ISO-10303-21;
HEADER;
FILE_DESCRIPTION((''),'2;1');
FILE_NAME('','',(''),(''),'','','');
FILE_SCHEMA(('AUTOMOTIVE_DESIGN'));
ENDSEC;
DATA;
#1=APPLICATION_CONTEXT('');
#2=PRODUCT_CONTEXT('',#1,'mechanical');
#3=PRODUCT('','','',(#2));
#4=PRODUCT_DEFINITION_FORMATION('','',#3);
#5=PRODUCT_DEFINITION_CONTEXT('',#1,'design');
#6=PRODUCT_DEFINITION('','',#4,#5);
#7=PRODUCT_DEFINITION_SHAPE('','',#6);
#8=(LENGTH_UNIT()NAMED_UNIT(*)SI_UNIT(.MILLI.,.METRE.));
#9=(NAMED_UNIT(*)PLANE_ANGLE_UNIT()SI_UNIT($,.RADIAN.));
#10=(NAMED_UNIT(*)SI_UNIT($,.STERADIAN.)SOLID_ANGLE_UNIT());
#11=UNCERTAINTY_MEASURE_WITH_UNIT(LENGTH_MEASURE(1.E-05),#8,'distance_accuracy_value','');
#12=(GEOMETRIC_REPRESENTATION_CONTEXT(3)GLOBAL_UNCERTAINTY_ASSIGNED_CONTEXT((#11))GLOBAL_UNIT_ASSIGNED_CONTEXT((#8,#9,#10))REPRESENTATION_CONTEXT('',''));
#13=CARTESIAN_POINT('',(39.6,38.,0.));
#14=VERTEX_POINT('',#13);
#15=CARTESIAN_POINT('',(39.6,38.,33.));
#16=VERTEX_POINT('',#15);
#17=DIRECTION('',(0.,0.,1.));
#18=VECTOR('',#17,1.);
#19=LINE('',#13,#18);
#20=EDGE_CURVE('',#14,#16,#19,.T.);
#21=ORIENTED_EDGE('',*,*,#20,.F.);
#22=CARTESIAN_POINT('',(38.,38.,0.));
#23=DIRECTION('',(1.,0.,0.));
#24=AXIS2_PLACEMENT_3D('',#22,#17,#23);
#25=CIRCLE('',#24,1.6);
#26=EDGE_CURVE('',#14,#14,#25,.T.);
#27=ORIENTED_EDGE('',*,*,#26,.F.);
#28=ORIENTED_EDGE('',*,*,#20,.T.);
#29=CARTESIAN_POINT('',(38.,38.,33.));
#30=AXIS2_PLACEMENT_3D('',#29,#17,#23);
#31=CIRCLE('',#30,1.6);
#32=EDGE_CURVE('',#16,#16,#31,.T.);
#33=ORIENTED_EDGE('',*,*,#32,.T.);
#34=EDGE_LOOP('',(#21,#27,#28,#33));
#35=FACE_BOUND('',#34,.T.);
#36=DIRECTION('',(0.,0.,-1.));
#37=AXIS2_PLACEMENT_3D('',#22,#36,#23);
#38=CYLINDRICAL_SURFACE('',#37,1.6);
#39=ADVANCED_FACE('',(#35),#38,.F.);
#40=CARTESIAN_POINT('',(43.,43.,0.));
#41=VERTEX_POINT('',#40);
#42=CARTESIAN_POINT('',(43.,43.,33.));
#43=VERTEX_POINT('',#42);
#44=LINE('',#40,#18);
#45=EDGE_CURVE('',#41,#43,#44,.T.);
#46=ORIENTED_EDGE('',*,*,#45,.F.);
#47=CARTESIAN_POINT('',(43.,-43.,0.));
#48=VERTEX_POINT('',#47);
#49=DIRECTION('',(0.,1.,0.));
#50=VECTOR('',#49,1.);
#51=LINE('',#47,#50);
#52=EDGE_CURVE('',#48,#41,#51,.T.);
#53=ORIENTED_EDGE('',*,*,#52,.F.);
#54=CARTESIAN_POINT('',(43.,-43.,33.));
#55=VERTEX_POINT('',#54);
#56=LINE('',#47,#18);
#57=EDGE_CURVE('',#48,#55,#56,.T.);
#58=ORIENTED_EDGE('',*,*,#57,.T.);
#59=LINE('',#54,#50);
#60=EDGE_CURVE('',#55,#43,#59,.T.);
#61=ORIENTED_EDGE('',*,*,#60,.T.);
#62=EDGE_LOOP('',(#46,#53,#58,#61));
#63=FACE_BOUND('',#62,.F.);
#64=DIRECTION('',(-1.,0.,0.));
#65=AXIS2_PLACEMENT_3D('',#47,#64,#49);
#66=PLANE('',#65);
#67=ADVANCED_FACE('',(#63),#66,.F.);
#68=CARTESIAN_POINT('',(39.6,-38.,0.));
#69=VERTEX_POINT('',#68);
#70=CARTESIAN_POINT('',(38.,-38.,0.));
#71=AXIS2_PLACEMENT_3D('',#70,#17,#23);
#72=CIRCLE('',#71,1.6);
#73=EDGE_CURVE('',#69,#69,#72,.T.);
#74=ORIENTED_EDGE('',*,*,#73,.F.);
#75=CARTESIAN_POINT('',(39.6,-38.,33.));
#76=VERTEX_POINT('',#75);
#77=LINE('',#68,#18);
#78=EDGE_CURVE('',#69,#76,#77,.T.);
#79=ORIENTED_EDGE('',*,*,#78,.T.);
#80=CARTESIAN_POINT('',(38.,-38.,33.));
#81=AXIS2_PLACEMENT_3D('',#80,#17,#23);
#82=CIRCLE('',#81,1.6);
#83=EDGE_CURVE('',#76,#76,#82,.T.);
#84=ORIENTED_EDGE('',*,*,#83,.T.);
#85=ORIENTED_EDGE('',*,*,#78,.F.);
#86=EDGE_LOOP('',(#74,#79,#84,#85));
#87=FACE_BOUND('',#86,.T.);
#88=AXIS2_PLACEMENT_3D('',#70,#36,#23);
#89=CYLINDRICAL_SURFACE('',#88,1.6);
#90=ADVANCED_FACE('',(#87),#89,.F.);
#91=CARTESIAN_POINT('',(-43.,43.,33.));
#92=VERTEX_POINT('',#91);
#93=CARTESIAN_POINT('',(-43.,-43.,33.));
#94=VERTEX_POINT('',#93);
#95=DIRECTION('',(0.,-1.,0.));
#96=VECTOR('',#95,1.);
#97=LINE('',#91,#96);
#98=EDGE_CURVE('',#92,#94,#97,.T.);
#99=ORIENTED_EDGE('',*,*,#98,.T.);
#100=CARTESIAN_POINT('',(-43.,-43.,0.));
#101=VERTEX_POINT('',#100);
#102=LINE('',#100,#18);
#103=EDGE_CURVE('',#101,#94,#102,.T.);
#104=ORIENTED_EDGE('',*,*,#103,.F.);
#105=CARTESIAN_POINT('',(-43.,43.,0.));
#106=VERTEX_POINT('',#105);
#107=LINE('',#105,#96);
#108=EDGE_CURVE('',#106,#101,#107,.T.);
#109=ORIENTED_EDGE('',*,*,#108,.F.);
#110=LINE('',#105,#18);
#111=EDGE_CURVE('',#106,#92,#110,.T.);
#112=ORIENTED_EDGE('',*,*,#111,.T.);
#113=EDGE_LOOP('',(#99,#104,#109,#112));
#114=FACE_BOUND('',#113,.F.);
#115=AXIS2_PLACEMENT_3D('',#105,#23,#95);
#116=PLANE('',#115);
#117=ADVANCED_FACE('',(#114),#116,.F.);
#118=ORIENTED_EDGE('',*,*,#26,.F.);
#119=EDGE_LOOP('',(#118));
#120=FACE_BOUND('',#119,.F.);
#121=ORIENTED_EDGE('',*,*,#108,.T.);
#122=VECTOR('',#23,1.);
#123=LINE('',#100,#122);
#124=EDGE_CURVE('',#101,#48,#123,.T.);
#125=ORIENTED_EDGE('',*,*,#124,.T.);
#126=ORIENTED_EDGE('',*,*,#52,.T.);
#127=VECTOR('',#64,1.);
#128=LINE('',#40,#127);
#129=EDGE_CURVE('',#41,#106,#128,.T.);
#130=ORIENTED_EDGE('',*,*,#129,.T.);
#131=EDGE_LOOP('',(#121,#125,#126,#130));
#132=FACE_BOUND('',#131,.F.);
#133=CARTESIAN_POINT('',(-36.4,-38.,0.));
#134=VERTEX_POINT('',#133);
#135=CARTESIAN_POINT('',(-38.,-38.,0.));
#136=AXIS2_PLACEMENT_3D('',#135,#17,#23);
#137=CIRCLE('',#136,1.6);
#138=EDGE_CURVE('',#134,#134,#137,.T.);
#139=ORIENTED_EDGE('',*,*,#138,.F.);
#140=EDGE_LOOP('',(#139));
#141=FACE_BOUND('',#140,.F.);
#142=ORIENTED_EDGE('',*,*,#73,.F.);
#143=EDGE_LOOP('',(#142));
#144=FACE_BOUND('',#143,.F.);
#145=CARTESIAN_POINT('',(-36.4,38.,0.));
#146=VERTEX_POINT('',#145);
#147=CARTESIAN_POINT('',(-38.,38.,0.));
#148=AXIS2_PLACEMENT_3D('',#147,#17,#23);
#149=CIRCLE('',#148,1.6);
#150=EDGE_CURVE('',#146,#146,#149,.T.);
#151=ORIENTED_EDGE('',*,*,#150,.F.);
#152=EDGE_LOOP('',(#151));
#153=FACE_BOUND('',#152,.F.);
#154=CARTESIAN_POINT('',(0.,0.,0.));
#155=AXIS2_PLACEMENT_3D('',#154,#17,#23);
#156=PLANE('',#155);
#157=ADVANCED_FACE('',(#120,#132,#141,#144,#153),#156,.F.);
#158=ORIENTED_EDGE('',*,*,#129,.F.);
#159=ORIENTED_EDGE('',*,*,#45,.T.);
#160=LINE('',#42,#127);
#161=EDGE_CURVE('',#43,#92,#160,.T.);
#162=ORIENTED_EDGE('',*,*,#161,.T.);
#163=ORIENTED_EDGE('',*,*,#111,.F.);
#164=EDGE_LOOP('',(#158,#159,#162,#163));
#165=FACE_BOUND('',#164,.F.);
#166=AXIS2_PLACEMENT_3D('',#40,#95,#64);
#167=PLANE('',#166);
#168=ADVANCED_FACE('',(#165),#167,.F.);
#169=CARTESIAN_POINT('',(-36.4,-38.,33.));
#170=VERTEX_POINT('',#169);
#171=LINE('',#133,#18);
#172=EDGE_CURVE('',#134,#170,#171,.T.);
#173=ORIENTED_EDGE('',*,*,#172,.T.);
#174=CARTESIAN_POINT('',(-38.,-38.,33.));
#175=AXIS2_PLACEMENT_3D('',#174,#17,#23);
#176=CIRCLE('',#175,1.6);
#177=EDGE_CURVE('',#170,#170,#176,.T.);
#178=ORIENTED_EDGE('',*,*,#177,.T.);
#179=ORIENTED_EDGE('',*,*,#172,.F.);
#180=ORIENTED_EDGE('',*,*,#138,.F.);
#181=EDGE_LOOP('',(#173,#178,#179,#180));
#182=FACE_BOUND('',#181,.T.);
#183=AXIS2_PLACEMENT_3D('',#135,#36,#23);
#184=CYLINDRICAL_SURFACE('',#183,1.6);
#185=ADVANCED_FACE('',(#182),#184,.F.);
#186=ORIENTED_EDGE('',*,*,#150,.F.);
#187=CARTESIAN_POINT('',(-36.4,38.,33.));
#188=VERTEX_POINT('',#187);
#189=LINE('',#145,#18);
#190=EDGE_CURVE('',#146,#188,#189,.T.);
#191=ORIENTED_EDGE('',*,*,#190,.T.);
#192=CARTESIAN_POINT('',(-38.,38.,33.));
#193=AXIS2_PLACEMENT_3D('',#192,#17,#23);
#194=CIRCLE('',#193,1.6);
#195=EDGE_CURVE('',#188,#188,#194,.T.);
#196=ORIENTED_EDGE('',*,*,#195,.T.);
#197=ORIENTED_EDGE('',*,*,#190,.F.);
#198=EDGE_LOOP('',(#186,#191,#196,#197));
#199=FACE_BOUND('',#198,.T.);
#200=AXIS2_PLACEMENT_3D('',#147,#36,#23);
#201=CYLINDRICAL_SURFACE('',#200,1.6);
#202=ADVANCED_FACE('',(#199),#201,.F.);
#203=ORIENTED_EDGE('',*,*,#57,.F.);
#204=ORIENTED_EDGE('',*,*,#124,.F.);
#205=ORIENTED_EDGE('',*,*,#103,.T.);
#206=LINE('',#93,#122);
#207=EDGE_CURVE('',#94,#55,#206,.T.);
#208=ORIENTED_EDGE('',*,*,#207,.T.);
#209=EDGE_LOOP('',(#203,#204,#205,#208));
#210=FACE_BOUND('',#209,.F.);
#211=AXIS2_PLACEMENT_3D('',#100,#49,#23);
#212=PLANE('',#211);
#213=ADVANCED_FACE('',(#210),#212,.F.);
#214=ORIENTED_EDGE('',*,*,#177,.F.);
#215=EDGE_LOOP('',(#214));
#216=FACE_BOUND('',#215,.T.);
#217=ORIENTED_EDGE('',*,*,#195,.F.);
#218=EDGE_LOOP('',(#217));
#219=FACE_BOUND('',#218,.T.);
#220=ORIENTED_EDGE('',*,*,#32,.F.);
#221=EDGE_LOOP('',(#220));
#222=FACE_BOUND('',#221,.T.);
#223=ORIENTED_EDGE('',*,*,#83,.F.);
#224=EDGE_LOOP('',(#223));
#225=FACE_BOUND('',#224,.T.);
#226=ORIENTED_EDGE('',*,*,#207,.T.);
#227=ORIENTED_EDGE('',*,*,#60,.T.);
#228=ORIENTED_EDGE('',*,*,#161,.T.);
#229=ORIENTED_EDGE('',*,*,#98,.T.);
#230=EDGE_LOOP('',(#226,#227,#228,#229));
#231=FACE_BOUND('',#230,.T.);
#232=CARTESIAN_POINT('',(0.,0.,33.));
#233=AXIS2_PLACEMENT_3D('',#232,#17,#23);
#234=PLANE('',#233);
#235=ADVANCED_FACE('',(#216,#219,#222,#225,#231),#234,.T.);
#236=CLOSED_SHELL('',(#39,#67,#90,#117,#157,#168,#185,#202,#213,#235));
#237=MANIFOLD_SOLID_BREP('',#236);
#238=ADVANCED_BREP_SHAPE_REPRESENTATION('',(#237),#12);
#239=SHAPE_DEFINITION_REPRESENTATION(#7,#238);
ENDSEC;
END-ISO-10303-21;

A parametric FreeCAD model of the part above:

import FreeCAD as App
import Part
import Sketcher

V = App.Vector

doc = App.newDocument("Part")
body = doc.addObject("PartDesign::Body", "Body")

# Sketch on XY plane
sketch1 = body.newObject("Sketcher::SketchObject", "Sketch")
sketch1.AttachmentSupport = (doc.getObject("XY_Plane"), [""])
sketch1.MapMode = "FlatFace"
sketch1.addGeometry([
    Part.LineSegment(V(-43, 43, 0), V(-43, -43, 0)),  # 0
    Part.LineSegment(V(-43, -43, 0), V(43, -43, 0)),  # 1
    Part.LineSegment(V(43, -43, 0), V(43, 43, 0)),  # 2
    Part.LineSegment(V(43, 43, 0), V(-43, 43, 0)),  # 3
    Part.Circle(V(-38, -38, 0), V(0, 0, 1), 1.6),  # 4
    Part.Circle(V(38, -38, 0), V(0, 0, 1), 1.6),  # 5
    Part.Circle(V(-38, 38, 0), V(0, 0, 1), 1.6),  # 6
    Part.Circle(V(38, 38, 0), V(0, 0, 1), 1.6),  # 7
], False)
sketch1.addConstraint([
    Sketcher.Constraint("Coincident", 0, 2, 1, 1),
    Sketcher.Constraint("Coincident", 1, 2, 2, 1),
    Sketcher.Constraint("Coincident", 2, 2, 3, 1),
    Sketcher.Constraint("Coincident", 3, 2, 0, 1),
    Sketcher.Constraint("Vertical", 0),
    Sketcher.Constraint("Horizontal", 1),
    Sketcher.Constraint("Vertical", 2),
    Sketcher.Constraint("Horizontal", 3),
    Sketcher.Constraint("Equal", 4, 5),
    Sketcher.Constraint("Equal", 5, 6),
    Sketcher.Constraint("Equal", 6, 7),
    Sketcher.Constraint("Symmetric", 5, 3, 6, 3, -1, 1),
    Sketcher.Constraint("Symmetric", 4, 3, 7, 3, -1, 1),
    Sketcher.Constraint("Symmetric", 0, 2, 2, 2, -1, 1),
    Sketcher.Constraint("Symmetric", 4, 3, 5, 3, -2),
    Sketcher.Constraint("Equal", 3, 0),
    Sketcher.Constraint("Diameter", 4, 3.2),
    Sketcher.Constraint("DistanceX", 1, 1, 1, 2, 86.0),
    Sketcher.Constraint("DistanceX", 4, 3, -1, 1, 38.0),
    Sketcher.Constraint("DistanceY", 4, 3, -1, 1, 38.0),
])
pad1 = body.newObject("PartDesign::Pad", "Pad")
pad1.Profile = sketch1
pad1.Length = 33

doc.recompute()
